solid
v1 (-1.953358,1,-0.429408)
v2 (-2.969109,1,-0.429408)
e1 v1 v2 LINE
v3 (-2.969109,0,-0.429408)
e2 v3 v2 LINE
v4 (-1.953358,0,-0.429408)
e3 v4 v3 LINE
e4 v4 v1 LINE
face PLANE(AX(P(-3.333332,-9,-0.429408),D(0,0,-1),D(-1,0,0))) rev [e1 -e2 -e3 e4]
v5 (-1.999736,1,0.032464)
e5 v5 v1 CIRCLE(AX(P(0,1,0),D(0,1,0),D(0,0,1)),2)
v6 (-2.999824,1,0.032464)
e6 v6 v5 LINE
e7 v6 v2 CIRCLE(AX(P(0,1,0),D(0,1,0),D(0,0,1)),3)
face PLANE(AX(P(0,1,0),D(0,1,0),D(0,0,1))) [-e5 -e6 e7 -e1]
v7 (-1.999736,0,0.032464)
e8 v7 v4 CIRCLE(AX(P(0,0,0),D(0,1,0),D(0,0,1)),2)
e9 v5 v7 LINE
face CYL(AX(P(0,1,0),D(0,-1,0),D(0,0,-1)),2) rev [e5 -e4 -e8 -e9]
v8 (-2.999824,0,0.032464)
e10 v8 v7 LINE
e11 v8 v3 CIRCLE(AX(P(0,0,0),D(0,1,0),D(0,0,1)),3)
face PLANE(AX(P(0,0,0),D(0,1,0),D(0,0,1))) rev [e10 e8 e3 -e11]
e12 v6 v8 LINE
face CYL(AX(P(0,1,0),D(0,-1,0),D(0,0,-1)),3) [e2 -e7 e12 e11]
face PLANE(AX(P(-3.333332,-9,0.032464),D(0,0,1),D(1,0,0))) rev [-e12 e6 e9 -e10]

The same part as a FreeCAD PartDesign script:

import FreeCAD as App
import Part
import Sketcher
from FreeCAD import Vector

doc = App.newDocument("Part")
body = doc.addObject("PartDesign::Body", "Body")

sketch1 = doc.addObject("Sketcher::SketchObject", "Sketch")
body.addObject(sketch1)
sketch1.AttachmentSupport = (doc.XZ_Plane, [""])
sketch1.MapMode = "FlatFace"
sketch1.addGeometry(Part.Circle(Vector(0, 0, 0), Vector(0, 0, 1), 3), False)
sketch1.addGeometry(Part.Circle(Vector(0, 0, 0), Vector(0, 0, 1), 2), False)
sketch1.addConstraint(Sketcher.Constraint("Coincident", 0, 3, -1, 1))
sketch1.addConstraint(Sketcher.Constraint("Coincident", 1, 3, -1, 1))
sketch1.addConstraint(Sketcher.Constraint("Diameter", 0, 6.0))
sketch1.addConstraint(Sketcher.Constraint("Diameter", 1, 4.0))
pad1 = doc.addObject("PartDesign::Pad", "Pad")
body.addObject(pad1)
pad1.Profile = sketch1
pad1.Length = 1
pad1.Reversed = True

sketch2 = doc.addObject("Sketcher::SketchObject", "Sketch001")
body.addObject(sketch2)
sketch2.AttachmentSupport = (doc.XZ_Plane, [""])
sketch2.MapMode = "FlatFace"
sketch2.AttachmentOffset = App.Placement(Vector(0, 0, -1), App.Rotation())
sketch2.addGeometry(Part.LineSegment(Vector(-3.33, -0.43, 0), Vector(-3.33, 0.03, 0)), False)
sketch2.addGeometry(Part.LineSegment(Vector(-3.33, 0.03, 0), Vector(-1.34, 0.03, 0)), False)
sketch2.addGeometry(Part.LineSegment(Vector(-1.34, 0.03, 0), Vector(-1.34, -0.43, 0)), False)
sketch2.addGeometry(Part.LineSegment(Vector(-1.34, -0.43, 0), Vector(-3.33, -0.43, 0)), False)
sketch2.addConstraint(Sketcher.Constraint("Coincident", 0, 2, 1, 1))
sketch2.addConstraint(Sketcher.Constraint("Coincident", 1, 2, 2, 1))
sketch2.addConstraint(Sketcher.Constraint("Coincident", 2, 2, 3, 1))
sketch2.addConstraint(Sketcher.Constraint("Coincident", 3, 2, 0, 1))
sketch2.addConstraint(Sketcher.Constraint("Vertical", 0))
sketch2.addConstraint(Sketcher.Constraint("Horizontal", 1))
sketch2.addConstraint(Sketcher.Constraint("Vertical", 2))
sketch2.addConstraint(Sketcher.Constraint("Horizontal", 3))
sketch2.addConstraint(Sketcher.Constraint("DistanceX", 1, 1, 1, 2, 1.991501))
sketch2.addConstraint(Sketcher.Constraint("DistanceY", 0, 1, 0, 2, 0.461872))
sketch2.addConstraint(Sketcher.Constraint("DistanceX", 0, 2, -1, 1, 3.333332))
sketch2.addConstraint(Sketcher.Constraint("DistanceY", -1, 1, 0, 2, 0.032464))
pocket1 = doc.addObject("PartDesign::Pocket", "Pocket")
body.addObject(pocket1)
pocket1.Profile = sketch2
pocket1.Length = 10
pocket1.Reversed = True

doc.recompute()
